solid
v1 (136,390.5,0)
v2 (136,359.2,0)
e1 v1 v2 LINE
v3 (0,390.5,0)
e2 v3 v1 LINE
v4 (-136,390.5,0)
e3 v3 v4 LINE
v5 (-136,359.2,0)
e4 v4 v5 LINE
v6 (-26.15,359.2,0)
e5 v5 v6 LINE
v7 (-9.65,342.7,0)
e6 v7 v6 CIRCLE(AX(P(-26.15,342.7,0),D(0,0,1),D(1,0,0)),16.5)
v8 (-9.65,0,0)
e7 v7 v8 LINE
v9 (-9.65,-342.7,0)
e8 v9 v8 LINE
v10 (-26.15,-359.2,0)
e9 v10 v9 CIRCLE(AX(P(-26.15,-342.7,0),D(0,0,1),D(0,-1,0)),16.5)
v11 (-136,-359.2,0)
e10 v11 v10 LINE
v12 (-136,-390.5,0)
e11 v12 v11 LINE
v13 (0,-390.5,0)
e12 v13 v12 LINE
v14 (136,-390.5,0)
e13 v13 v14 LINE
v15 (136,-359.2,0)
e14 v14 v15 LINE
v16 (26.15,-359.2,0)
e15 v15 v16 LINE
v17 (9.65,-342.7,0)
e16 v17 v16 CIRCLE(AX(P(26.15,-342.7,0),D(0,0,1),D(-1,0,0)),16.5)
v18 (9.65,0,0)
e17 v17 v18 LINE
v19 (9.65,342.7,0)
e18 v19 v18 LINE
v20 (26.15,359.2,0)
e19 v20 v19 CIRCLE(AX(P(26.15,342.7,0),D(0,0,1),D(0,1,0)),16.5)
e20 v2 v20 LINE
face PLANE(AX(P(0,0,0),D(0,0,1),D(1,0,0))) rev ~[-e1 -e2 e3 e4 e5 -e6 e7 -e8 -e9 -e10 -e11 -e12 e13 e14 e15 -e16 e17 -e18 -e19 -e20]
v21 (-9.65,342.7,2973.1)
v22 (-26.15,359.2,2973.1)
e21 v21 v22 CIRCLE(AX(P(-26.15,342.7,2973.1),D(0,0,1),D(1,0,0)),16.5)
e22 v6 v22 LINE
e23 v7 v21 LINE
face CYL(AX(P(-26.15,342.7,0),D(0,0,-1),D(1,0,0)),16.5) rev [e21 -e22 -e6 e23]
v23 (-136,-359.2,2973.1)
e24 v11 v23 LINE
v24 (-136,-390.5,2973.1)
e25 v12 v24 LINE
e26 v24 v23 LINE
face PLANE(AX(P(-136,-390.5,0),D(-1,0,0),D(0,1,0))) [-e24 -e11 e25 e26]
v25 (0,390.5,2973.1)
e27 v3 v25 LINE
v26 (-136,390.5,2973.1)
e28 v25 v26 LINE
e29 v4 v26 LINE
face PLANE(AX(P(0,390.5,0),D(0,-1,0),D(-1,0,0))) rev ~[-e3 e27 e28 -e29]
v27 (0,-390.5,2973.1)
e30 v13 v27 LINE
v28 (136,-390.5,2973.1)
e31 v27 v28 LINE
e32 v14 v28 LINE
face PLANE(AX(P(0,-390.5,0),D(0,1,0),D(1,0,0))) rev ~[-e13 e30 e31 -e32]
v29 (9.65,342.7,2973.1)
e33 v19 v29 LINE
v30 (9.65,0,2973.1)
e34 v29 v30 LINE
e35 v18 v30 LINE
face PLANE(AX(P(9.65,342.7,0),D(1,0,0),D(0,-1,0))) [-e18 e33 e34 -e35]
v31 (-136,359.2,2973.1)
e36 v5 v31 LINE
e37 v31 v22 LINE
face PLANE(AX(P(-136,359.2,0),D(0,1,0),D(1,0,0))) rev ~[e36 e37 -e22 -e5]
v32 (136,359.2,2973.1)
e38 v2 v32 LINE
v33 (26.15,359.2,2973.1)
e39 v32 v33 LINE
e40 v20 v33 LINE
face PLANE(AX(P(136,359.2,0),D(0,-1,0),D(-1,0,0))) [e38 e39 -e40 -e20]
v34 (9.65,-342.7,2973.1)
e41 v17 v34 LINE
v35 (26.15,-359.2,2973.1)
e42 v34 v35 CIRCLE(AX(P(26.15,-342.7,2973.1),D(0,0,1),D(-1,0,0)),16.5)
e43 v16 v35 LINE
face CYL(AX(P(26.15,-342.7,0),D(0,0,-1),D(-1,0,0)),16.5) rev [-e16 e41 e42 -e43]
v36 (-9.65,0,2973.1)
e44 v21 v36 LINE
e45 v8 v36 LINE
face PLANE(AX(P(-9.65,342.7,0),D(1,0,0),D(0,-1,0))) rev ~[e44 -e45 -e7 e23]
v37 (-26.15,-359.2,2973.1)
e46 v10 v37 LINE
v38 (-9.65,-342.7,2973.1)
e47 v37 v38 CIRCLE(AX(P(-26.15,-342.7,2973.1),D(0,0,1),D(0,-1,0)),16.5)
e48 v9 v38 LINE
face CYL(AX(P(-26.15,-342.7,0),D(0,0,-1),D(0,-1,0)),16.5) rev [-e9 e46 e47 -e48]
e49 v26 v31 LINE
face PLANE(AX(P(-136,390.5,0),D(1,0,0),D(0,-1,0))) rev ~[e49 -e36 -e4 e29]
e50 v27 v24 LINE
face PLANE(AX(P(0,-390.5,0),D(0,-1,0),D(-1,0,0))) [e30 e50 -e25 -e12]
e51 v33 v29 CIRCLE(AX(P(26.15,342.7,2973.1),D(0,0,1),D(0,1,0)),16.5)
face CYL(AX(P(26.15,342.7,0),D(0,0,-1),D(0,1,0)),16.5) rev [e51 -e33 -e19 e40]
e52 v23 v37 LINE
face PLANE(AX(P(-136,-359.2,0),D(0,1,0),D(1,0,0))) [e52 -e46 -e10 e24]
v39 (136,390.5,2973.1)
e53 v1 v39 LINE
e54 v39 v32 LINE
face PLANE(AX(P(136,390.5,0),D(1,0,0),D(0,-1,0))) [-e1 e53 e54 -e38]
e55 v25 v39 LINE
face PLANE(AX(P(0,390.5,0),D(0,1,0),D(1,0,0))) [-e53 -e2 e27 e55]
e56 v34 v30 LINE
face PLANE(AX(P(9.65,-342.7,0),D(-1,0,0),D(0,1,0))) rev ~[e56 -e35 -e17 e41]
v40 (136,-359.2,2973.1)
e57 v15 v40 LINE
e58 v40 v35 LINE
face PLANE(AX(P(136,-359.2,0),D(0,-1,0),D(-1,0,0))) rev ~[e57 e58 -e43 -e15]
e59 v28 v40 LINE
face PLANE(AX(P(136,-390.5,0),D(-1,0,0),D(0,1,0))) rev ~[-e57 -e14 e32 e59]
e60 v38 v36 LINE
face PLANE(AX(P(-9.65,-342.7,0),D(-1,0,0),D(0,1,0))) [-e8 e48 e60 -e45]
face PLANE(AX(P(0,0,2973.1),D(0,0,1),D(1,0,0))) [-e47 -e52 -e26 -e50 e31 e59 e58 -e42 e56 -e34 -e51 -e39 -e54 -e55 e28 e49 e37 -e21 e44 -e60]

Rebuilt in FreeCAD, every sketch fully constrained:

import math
import FreeCAD as App
import Part
import Sketcher
Q = App.Units.Quantity

doc = App.newDocument("Part")
params = doc.addObject("Spreadsheet::Sheet", "Params")
for row, (alias, value) in enumerate([
    ("sketch1_radius", "16.5 mm"),
    ("sketch1_height", "31.3 mm"),
    ("pad1_length", "2973.1 mm"),
], start=1):
    params.set(f"A{row}", alias)
    params.set(f"B{row}", "=" + value)
    params.setAlias(f"B{row}", alias)

body = doc.addObject("PartDesign::Body", "Body")

sketch1 = body.newObject("Sketcher::SketchObject", "Sketch")
sketch1.AttachmentSupport = (doc.getObject("XY_Plane"), [""])
sketch1.MapMode = "FlatFace"
sketch1.addGeometry(Part.LineSegment(App.Vector(-136, -359, 0), App.Vector(-136, -390, 0)), False)
sketch1.addGeometry(Part.LineSegment(App.Vector(-136, -390, 0), App.Vector(136, -390, 0)), False)
sketch1.addGeometry(Part.LineSegment(App.Vector(136, -390, 0), App.Vector(136, -359, 0)), False)
sketch1.addGeometry(Part.LineSegment(App.Vector(136, -359, 0), App.Vector(26, -359, 0)), False)
sketch1.addGeometry(Part.ArcOfCircle(Part.Circle(App.Vector(26, -343, 0), App.Vector(0, 0, 1), 16), math.radians(180), math.radians(270)), False)
sketch1.addGeometry(Part.LineSegment(App.Vector(10, -343, 0), App.Vector(10, 343, 0)), False)
sketch1.addGeometry(Part.ArcOfCircle(Part.Circle(App.Vector(26, 343, 0), App.Vector(0, 0, 1), 16), math.radians(90), math.radians(180)), False)
sketch1.addGeometry(Part.LineSegment(App.Vector(26, 359, 0), App.Vector(136, 359, 0)), False)
sketch1.addGeometry(Part.LineSegment(App.Vector(136, 359, 0), App.Vector(136, 390, 0)), False)
sketch1.addGeometry(Part.LineSegment(App.Vector(136, 390, 0), App.Vector(-136, 390, 0)), False)
sketch1.addGeometry(Part.LineSegment(App.Vector(-136, 390, 0), App.Vector(-136, 359, 0)), False)
sketch1.addGeometry(Part.LineSegment(App.Vector(-136, 359, 0), App.Vector(-26, 359, 0)), False)
sketch1.addGeometry(Part.ArcOfCircle(Part.Circle(App.Vector(-26, 343, 0), App.Vector(0, 0, 1), 16), math.radians(0), math.radians(90)), False)
sketch1.addGeometry(Part.LineSegment(App.Vector(-10, 343, 0), App.Vector(-10, -343, 0)), False)
sketch1.addGeometry(Part.ArcOfCircle(Part.Circle(App.Vector(-26, -343, 0), App.Vector(0, 0, 1), 16), math.radians(-90), math.radians(0)), False)
sketch1.addGeometry(Part.LineSegment(App.Vector(-26, -359, 0), App.Vector(-136, -359, 0)), False)
sketch1.addConstraint(Sketcher.Constraint("Coincident", 0, 2, 1, 1))
sketch1.addConstraint(Sketcher.Constraint("Coincident", 1, 2, 2, 1))
sketch1.addConstraint(Sketcher.Constraint("Coincident", 2, 2, 3, 1))
sketch1.addConstraint(Sketcher.Constraint("Tangent", 3, 2, 4, 2))
sketch1.addConstraint(Sketcher.Constraint("Tangent", 4, 1, 5, 1))
sketch1.addConstraint(Sketcher.Constraint("Tangent", 5, 2, 6, 2))
sketch1.addConstraint(Sketcher.Constraint("Tangent", 6, 1, 7, 1))
sketch1.addConstraint(Sketcher.Constraint("Coincident", 7, 2, 8, 1))
sketch1.addConstraint(Sketcher.Constraint("Coincident", 8, 2, 9, 1))
sketch1.addConstraint(Sketcher.Constraint("Coincident", 9, 2, 10, 1))
sketch1.addConstraint(Sketcher.Constraint("Coincident", 10, 2, 11, 1))
sketch1.addConstraint(Sketcher.Constraint("Tangent", 11, 2, 12, 2))
sketch1.addConstraint(Sketcher.Constraint("Tangent", 12, 1, 13, 1))
sketch1.addConstraint(Sketcher.Constraint("Tangent", 13, 2, 14, 2))
sketch1.addConstraint(Sketcher.Constraint("Tangent", 14, 1, 15, 1))
sketch1.addConstraint(Sketcher.Constraint("Coincident", 15, 2, 0, 1))
sketch1.addConstraint(Sketcher.Constraint("Vertical", 0))
sketch1.addConstraint(Sketcher.Constraint("Horizontal", 1))
sketch1.addConstraint(Sketcher.Constraint("Vertical", 2))
sketch1.addConstraint(Sketcher.Constraint("Horizontal", 3))
sketch1.addConstraint(Sketcher.Constraint("Vertical", 5))
sketch1.addConstraint(Sketcher.Constraint("Horizontal", 7))
sketch1.addConstraint(Sketcher.Constraint("Vertical", 8))
sketch1.addConstraint(Sketcher.Constraint("Horizontal", 9))
sketch1.addConstraint(Sketcher.Constraint("Vertical", 10))
sketch1.addConstraint(Sketcher.Constraint("Horizontal", 11))
sketch1.addConstraint(Sketcher.Constraint("Vertical", 13))
sketch1.addConstraint(Sketcher.Constraint("Horizontal", 15))
sketch1.addConstraint(Sketcher.Constraint("Equal", 4, 6))
sketch1.addConstraint(Sketcher.Constraint("Equal", 6, 12))
sketch1.addConstraint(Sketcher.Constraint("Equal", 12, 14))
sketch1.addConstraint(Sketcher.Constraint("Symmetric", 4, 3, 12, 3, -1, 1))
sketch1.addConstraint(Sketcher.Constraint("Symmetric", 0, 2, 8, 2, -1, 1))
sketch1.addConstraint(Sketcher.Constraint("Symmetric", 7, 2, 10, 2, -2))
sketch1.addConstraint(Sketcher.Constraint("Symmetric", 2, 2, 15, 2, -2))
sketch1.addConstraint(Sketcher.Constraint("Radius", 4, Q("16.5 mm")))
sketch1.addConstraint(Sketcher.Constraint("DistanceY", 0, 2, 0, 1, Q("31.3 mm")))
sketch1.addConstraint(Sketcher.Constraint("DistanceX", 0, 2, -1, 1, Q("136 mm")))
sketch1.addConstraint(Sketcher.Constraint("DistanceY", 0, 2, -1, 1, Q("390.5 mm")))
sketch1.addConstraint(Sketcher.Constraint("DistanceX", -1, 1, 4, 1, Q("9.65 mm")))
sketch1.setExpression("Constraints[35]", "Params.sketch1_radius")
sketch1.setExpression("Constraints[36]", "Params.sketch1_height")
pad1 = body.newObject("PartDesign::Pad", "Pad")
pad1.Profile = sketch1
pad1.setExpression("Length", "Params.pad1_length")

doc.recompute()
